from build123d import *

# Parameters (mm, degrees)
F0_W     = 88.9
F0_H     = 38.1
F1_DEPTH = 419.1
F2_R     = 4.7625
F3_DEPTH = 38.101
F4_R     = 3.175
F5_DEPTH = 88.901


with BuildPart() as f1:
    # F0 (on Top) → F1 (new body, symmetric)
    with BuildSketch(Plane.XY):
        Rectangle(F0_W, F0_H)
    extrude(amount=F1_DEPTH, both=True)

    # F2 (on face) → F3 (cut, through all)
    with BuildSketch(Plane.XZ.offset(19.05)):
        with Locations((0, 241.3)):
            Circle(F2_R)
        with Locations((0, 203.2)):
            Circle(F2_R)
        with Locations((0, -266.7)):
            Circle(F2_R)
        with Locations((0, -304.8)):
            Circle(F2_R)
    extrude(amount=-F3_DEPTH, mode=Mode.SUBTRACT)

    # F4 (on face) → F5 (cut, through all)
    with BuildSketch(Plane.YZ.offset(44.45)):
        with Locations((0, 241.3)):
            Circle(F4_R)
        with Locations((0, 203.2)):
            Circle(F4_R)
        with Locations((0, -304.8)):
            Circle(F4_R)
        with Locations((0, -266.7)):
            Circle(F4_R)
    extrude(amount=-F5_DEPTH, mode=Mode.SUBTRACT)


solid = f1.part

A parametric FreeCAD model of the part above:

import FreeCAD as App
import Part
import Sketcher
Q = App.Units.Quantity


def add_polygon(sketch, points):
    """Adds a closed chain of lines whose ends are joined by coincident constraints."""
    first, n = sketch.GeometryCount, len(points)
    for a, b in zip(points, points[1:] + points[:1]):
        sketch.addGeometry(Part.LineSegment(App.Vector(*a, 0), App.Vector(*b, 0)), False)
    for i in range(n):
        sketch.addConstraint(Sketcher.Constraint("Coincident", first + i, 2, first + (i + 1) % n, 1))

doc = App.newDocument("Part")
body = doc.addObject("PartDesign::Body", "Body")

sketch1 = body.newObject("Sketcher::SketchObject", "Sketch")
sketch1.AttachmentSupport = (doc.getObject("XY_Plane"), [""])
sketch1.MapMode = "FlatFace"
add_polygon(sketch1, [(-44, 19), (-44, -19), (44, -19), (44, 19)])
sketch1.addConstraint(Sketcher.Constraint("Vertical", 0))
sketch1.addConstraint(Sketcher.Constraint("Horizontal", 1))
sketch1.addConstraint(Sketcher.Constraint("Vertical", 2))
sketch1.addConstraint(Sketcher.Constraint("Horizontal", 3))
sketch1.addConstraint(Sketcher.Constraint("Symmetric", 0, 2, 2, 2, -1, 1))
sketch1.addConstraint(Sketcher.Constraint("DistanceX", 1, 1, 1, 2, Q("3.5 in")))
sketch1.addConstraint(Sketcher.Constraint("DistanceY", 0, 2, 0, 1, Q("1.5 in")))
pad1 = body.newObject("PartDesign::Pad", "Pad")
pad1.Profile = sketch1
pad1.Length = Q("33 in")
pad1.Midplane = True

sketch2 = body.newObject("Sketcher::SketchObject", "Sketch001")
sketch2.AttachmentSupport = (doc.getObject("XZ_Plane"), [""])
sketch2.MapMode = "FlatFace"
sketch2.AttachmentOffset = App.Placement(App.Vector(0, 0, 0.75 * 25.4), App.Rotation())
sketch2.addGeometry(Part.Circle(App.Vector(0, 241.3, 0), App.Vector(0, 0, 1), 4.8), False)
sketch2.addGeometry(Part.Circle(App.Vector(0, 203.2, 0), App.Vector(0, 0, 1), 4.8), False)
sketch2.addGeometry(Part.Circle(App.Vector(0, -266.7, 0), App.Vector(0, 0, 1), 4.8), False)
sketch2.addGeometry(Part.Circle(App.Vector(0, -304.8, 0), App.Vector(0, 0, 1), 4.8), False)
sketch2.addConstraint(Sketcher.Constraint("Equal", 0, 1))
sketch2.addConstraint(Sketcher.Constraint("Equal", 1, 2))
sketch2.addConstraint(Sketcher.Constraint("Equal", 2, 3))
sketch2.addConstraint(Sketcher.Constraint("PointOnObject", 0, 3, -2))
sketch2.addConstraint(Sketcher.Constraint("PointOnObject", 1, 3, -2))
sketch2.addConstraint(Sketcher.Constraint("PointOnObject", 2, 3, -2))
sketch2.addConstraint(Sketcher.Constraint("PointOnObject", 3, 3, -2))
sketch2.addConstraint(Sketcher.Constraint("Diameter", 0, Q("0.375 in")))
sketch2.addConstraint(Sketcher.Constraint("DistanceY", -1, 1, 1, 3, Q("8 in")))
sketch2.addConstraint(Sketcher.Constraint("DistanceY", 3, 3, -1, 1, Q("12 in")))
sketch2.addConstraint(Sketcher.Constraint("DistanceY", 2, 3, 0, 3, Q("20 in")))
sketch2.addConstraint(Sketcher.Constraint("DistanceY", -1, 1, 0, 3, Q("9.5 in")))
pocket1 = body.newObject("PartDesign::Pocket", "Pocket")
pocket1.Profile = sketch2
pocket1.Type = "ThroughAll"

sketch3 = body.newObject("Sketcher::SketchObject", "Sketch002")
sketch3.AttachmentSupport = (doc.getObject("YZ_Plane"), [""])
sketch3.MapMode = "FlatFace"
sketch3.AttachmentOffset = App.Placement(App.Vector(0, 0, 1.75 * 25.4), App.Rotation())
sketch3.addGeometry(Part.Circle(App.Vector(0, 241.3, 0), App.Vector(0, 0, 1), 3.2), False)
sketch3.addGeometry(Part.Circle(App.Vector(0, 203.2, 0), App.Vector(0, 0, 1), 3.2), False)
sketch3.addGeometry(Part.Circle(App.Vector(0, -304.8, 0), App.Vector(0, 0, 1), 3.2), False)
sketch3.addGeometry(Part.Circle(App.Vector(0, -266.7, 0), App.Vector(0, 0, 1), 3.2), False)
sketch3.addConstraint(Sketcher.Constraint("Equal", 0, 1))
sketch3.addConstraint(Sketcher.Constraint("Equal", 1, 2))
sketch3.addConstraint(Sketcher.Constraint("Equal", 2, 3))
sketch3.addConstraint(Sketcher.Constraint("PointOnObject", 0, 3, -2))
sketch3.addConstraint(Sketcher.Constraint("PointOnObject", 1, 3, -2))
sketch3.addConstraint(Sketcher.Constraint("PointOnObject", 2, 3, -2))
sketch3.addConstraint(Sketcher.Constraint("PointOnObject", 3, 3, -2))
sketch3.addConstraint(Sketcher.Constraint("Diameter", 0, Q("0.25 in")))
sketch3.addConstraint(Sketcher.Constraint("DistanceY", -1, 1, 1, 3, Q("8 in")))
sketch3.addConstraint(Sketcher.Constraint("DistanceY", 2, 3, -1, 1, Q("12 in")))
sketch3.addConstraint(Sketcher.Constraint("DistanceY", 3, 3, 0, 3, Q("20 in")))
sketch3.addConstraint(Sketcher.Constraint("DistanceY", -1, 1, 0, 3, Q("9.5 in")))
pocket2 = body.newObject("PartDesign::Pocket", "Pocket001")
pocket2.Profile = sketch3
pocket2.Type = "ThroughAll"

doc.recompute()
